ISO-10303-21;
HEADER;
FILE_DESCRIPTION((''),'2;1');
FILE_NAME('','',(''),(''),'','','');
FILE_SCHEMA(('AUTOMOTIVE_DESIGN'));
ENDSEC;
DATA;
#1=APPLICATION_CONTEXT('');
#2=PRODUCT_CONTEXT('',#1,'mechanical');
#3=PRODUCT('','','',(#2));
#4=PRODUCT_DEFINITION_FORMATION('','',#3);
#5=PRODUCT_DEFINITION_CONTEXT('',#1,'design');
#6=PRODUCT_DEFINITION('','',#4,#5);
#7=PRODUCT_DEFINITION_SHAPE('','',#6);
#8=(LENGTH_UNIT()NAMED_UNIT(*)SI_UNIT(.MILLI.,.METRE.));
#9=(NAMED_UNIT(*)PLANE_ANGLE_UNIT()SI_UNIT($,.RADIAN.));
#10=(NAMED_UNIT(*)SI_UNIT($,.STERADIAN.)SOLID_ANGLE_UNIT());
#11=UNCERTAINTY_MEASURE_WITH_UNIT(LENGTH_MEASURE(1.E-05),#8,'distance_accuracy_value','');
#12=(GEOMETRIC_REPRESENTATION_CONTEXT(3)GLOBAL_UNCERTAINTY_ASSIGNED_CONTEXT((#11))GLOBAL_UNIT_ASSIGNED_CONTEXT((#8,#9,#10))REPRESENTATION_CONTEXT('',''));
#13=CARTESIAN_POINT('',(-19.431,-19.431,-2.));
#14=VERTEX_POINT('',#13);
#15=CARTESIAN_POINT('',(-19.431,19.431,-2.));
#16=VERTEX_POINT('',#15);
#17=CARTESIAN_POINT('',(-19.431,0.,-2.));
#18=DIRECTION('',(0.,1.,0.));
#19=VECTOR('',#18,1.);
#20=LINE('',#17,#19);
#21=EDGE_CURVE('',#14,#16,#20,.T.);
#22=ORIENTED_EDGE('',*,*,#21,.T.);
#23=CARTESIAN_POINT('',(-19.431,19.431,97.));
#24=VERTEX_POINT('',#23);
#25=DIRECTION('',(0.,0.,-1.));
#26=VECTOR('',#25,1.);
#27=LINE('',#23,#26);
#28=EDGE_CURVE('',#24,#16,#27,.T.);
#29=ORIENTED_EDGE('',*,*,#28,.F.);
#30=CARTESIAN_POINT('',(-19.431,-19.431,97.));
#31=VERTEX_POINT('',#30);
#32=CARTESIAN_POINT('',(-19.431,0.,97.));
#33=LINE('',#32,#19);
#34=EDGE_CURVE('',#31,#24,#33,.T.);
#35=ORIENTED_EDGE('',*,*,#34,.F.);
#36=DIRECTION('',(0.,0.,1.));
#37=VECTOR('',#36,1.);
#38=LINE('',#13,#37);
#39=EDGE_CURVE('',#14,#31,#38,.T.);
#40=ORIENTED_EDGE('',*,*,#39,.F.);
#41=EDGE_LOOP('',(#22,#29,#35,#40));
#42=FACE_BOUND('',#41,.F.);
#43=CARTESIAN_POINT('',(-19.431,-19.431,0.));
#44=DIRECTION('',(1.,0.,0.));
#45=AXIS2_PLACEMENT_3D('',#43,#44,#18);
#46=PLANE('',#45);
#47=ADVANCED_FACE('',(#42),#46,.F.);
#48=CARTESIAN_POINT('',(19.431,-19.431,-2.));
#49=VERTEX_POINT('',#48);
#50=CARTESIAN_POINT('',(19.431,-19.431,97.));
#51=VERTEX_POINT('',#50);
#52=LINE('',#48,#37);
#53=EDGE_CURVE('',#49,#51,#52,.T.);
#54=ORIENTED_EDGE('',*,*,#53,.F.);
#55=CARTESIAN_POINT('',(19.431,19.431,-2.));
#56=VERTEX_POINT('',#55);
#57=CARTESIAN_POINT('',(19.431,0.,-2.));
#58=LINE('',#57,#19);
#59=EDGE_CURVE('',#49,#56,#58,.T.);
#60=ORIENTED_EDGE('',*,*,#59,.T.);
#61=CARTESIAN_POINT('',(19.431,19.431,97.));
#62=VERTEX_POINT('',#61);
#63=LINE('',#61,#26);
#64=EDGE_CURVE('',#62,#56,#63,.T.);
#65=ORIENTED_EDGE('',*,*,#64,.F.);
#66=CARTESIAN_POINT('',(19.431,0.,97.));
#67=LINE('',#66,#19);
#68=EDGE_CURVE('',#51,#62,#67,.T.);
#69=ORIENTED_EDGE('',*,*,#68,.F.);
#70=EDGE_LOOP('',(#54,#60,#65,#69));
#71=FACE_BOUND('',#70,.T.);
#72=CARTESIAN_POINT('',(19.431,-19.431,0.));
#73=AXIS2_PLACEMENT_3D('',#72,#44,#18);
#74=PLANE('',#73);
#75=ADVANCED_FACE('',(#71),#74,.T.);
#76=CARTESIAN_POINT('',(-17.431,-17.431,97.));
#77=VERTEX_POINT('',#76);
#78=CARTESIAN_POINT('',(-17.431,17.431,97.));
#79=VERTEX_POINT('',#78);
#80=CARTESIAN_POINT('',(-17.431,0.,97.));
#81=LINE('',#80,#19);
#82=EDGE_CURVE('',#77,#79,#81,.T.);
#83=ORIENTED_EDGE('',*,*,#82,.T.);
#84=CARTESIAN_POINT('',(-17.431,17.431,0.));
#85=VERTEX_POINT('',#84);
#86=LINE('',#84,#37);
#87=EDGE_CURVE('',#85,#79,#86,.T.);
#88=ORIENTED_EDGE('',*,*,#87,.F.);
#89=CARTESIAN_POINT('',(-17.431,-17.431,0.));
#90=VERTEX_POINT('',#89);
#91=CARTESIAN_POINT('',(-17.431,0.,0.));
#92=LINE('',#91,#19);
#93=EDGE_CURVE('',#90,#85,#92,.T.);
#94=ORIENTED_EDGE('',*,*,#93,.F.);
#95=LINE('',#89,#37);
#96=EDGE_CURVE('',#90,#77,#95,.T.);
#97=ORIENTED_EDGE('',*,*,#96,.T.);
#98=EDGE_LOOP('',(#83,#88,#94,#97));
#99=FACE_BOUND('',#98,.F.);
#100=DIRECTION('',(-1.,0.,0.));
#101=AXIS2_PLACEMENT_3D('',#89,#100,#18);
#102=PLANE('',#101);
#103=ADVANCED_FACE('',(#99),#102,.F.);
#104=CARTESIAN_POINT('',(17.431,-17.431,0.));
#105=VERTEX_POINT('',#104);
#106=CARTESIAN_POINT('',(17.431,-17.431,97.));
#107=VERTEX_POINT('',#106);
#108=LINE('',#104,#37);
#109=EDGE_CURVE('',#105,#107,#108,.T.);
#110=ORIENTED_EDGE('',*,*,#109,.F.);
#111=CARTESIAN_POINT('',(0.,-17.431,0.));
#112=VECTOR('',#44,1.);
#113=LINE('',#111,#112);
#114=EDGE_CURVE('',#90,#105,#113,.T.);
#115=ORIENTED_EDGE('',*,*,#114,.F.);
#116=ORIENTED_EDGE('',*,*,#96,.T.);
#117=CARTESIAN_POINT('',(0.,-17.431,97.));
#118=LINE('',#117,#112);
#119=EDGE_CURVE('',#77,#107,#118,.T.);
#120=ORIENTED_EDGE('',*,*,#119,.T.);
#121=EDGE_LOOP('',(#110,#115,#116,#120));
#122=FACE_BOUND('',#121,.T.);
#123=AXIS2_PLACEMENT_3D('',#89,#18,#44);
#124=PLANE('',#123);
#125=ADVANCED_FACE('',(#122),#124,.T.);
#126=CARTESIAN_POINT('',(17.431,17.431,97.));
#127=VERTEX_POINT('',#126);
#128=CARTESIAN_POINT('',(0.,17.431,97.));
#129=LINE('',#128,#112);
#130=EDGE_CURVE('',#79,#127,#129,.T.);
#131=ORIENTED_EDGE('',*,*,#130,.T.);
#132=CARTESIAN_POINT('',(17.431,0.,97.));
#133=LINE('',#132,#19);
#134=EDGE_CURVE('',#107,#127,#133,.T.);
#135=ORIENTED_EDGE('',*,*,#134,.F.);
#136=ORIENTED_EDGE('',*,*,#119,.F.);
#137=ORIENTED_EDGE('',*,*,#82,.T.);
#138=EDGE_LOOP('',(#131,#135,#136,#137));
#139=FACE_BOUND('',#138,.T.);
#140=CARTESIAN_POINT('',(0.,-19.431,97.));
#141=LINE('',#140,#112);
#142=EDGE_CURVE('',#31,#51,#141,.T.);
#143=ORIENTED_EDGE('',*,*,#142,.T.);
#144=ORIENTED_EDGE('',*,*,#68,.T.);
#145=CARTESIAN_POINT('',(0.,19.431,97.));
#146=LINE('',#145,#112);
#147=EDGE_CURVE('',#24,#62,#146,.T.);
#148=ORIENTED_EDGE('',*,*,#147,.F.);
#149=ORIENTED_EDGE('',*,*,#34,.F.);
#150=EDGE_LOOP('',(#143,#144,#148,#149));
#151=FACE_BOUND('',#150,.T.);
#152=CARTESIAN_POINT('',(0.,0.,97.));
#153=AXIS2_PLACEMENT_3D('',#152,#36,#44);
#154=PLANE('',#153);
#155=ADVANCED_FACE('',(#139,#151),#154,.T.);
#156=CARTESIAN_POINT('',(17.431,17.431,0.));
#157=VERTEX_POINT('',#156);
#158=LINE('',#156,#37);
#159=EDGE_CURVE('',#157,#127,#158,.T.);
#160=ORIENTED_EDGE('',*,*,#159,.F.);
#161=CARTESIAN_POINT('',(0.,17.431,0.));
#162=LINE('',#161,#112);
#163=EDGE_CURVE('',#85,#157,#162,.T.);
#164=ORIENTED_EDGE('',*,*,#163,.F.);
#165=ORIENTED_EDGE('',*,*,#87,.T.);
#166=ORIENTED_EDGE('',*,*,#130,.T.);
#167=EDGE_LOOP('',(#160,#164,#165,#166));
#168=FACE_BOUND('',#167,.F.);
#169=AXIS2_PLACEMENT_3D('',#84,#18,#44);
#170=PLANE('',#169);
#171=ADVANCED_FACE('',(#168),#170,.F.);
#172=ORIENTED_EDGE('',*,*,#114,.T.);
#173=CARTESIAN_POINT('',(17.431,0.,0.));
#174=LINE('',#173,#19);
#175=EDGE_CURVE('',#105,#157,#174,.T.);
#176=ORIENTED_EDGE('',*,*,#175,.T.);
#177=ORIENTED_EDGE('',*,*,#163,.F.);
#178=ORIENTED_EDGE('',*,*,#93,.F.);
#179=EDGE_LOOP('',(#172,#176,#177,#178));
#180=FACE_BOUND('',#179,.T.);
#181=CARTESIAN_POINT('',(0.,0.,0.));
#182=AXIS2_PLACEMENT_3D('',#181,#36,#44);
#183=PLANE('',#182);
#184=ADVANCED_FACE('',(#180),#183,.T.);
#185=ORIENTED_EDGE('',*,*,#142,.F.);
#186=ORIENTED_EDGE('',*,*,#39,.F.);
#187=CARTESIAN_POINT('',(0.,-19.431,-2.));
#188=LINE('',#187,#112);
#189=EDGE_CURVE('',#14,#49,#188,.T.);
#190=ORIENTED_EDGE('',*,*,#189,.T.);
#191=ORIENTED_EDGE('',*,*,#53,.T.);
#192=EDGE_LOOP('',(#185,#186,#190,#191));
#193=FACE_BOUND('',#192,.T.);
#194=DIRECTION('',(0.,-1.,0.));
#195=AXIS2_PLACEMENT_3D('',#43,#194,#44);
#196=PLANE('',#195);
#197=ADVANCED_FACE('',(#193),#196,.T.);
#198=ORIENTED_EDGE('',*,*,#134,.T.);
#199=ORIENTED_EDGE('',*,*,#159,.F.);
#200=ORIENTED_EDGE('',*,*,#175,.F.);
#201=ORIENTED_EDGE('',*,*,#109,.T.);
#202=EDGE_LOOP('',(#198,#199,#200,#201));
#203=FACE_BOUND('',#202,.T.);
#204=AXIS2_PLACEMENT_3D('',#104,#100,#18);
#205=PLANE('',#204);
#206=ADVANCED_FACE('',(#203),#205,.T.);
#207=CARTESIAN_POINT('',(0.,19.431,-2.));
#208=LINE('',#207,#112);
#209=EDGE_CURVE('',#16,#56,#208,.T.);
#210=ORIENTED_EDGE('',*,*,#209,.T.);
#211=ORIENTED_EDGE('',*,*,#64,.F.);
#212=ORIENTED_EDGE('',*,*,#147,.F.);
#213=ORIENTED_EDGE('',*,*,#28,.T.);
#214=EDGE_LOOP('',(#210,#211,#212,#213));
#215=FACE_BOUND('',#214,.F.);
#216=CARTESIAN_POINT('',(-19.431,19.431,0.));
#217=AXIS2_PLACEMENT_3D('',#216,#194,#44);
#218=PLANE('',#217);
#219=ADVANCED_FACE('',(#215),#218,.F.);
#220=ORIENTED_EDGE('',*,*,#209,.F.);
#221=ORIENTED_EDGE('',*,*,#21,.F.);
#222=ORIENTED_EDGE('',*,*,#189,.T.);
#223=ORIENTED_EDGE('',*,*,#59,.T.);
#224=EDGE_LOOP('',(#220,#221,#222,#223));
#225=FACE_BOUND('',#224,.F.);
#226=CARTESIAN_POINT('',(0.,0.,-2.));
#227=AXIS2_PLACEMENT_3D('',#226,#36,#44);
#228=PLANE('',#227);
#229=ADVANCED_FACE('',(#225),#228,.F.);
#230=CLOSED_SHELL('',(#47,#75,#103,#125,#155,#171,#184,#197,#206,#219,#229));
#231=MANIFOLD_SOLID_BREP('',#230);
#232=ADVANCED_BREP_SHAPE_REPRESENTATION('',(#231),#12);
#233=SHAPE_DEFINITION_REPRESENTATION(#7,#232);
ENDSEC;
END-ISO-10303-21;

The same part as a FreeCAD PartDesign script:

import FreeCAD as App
import Part
import Sketcher

V = App.Vector
Q = App.Units.Quantity


def add_polygon(sketch, points):
    """Adds a closed chain of lines whose ends are joined by coincident constraints."""
    first, n = sketch.GeometryCount, len(points)
    for a, b in zip(points, points[1:] + points[:1]):
        sketch.addGeometry(Part.LineSegment(App.Vector(*a, 0), App.Vector(*b, 0)), False)
    for i in range(n):
        sketch.addConstraint(Sketcher.Constraint("Coincident", first + i, 2, first + (i + 1) % n, 1))

doc = App.newDocument("Part")
body = doc.addObject("PartDesign::Body", "Body")

# Sketch on XY plane
sketch1 = doc.addObject("Sketcher::SketchObject", "Sketch")
body.addObject(sketch1)
sketch1.AttachmentSupport = (doc.XY_Plane, [""])
sketch1.MapMode = "FlatFace"
add_polygon(sketch1, [(-19, 19), (-19, -19), (19, -19), (19, 19)])  # lines 0-3
add_polygon(sketch1, [(17, -17), (-17, -17), (-17, 17), (17, 17)])  # lines 4-7
sketch1.addConstraint([
    Sketcher.Constraint("Vertical", 0),
    Sketcher.Constraint("Horizontal", 1),
    Sketcher.Constraint("Vertical", 2),
    Sketcher.Constraint("Horizontal", 3),
    Sketcher.Constraint("Horizontal", 4),
    Sketcher.Constraint("Vertical", 5),
    Sketcher.Constraint("Horizontal", 6),
    Sketcher.Constraint("Vertical", 7),
    Sketcher.Constraint("Symmetric", 0, 2, 2, 2, -1, 1),
    Sketcher.Constraint("Symmetric", 4, 2, 6, 2, -1, 1),
    Sketcher.Constraint("Equal", 3, 0),
    Sketcher.Constraint("Equal", 6, 5),
    Sketcher.Constraint("DistanceX", 0, 2, 4, 2, Q("2 mm")),
    Sketcher.Constraint("DistanceX", 1, 1, 1, 2, Q("38.862 mm")),
])
pad1 = doc.addObject("PartDesign::Pad", "Pad")
body.addObject(pad1)
pad1.Profile = sketch1
pad1.Length = 97

# Sketch on XY plane
sketch2 = doc.addObject("Sketcher::SketchObject", "Sketch001")
body.addObject(sketch2)
sketch2.AttachmentSupport = (doc.XY_Plane, [""])
sketch2.MapMode = "FlatFace"
add_polygon(sketch2, [(-19, 19), (-19, -19), (19, -19), (19, 19)])  # lines 0-3
sketch2.addConstraint([
    Sketcher.Constraint("Vertical", 0),
    Sketcher.Constraint("Horizontal", 1),
    Sketcher.Constraint("Vertical", 2),
    Sketcher.Constraint("Horizontal", 3),
    Sketcher.Constraint("Symmetric", 0, 2, 2, 2, -1, 1),
    Sketcher.Constraint("Equal", 3, 0),
    Sketcher.Constraint("DistanceX", 1, 1, 1, 2, Q("38.862 mm")),
])
pad2 = doc.addObject("PartDesign::Pad", "Pad001")
body.addObject(pad2)
pad2.Profile = sketch2
pad2.Length = 2
pad2.Reversed = True

doc.recompute()
